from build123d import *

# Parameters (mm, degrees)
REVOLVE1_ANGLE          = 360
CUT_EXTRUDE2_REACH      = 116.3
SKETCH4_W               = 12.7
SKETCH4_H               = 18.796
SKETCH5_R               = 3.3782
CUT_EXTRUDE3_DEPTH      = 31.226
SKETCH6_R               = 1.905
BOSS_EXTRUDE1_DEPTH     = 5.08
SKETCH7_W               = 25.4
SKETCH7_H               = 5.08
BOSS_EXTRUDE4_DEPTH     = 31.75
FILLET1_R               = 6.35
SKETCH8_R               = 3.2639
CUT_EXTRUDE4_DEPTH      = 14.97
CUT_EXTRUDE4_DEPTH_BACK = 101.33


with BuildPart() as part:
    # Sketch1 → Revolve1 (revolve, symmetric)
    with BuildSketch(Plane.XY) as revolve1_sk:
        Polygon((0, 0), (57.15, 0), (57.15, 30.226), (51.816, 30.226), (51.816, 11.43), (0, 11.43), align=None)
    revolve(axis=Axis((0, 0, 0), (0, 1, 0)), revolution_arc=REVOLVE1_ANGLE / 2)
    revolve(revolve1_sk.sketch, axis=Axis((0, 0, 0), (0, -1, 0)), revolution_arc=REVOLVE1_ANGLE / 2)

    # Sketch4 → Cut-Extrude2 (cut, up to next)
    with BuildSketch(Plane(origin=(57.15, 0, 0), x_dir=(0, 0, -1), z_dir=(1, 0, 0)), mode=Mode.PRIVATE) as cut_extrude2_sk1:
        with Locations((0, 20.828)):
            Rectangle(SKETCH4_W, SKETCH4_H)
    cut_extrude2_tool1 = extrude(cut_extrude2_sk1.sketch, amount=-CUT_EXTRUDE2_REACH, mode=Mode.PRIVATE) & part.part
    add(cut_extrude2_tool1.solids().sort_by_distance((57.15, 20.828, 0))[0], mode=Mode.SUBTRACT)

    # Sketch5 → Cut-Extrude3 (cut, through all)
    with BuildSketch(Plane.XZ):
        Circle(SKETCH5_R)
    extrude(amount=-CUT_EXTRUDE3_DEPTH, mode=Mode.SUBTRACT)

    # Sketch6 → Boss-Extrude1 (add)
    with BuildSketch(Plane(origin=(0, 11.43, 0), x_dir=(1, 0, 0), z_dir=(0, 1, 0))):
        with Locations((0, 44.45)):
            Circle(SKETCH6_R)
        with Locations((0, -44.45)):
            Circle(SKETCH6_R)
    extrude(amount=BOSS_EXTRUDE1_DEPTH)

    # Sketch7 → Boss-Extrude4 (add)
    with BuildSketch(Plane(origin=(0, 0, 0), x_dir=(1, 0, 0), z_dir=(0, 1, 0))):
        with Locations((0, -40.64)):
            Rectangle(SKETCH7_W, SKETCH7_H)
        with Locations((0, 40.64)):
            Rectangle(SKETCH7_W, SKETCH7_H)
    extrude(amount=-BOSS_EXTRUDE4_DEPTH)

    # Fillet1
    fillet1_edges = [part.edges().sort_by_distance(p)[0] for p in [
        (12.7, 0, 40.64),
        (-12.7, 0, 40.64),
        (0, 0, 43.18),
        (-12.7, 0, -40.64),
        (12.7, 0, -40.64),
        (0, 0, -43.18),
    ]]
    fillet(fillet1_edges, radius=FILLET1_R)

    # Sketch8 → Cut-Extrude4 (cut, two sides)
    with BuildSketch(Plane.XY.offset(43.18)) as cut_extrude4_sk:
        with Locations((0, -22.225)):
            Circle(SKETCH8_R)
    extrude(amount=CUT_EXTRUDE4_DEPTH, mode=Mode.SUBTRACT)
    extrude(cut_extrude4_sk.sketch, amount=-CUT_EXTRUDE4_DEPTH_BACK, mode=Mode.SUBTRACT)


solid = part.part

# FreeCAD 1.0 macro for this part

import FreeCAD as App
import Part
import Sketcher

V = App.Vector
Q = App.Units.Quantity


def edges_at(feature, points):
    """Names of the edges that pass closest to the given points."""
    edges = feature.Shape.Edges
    near = lambda p: min(range(len(edges)), key=lambda i: edges[i].distToShape(Part.Vertex(*p))[0])
    return sorted({f"Edge{near(p) + 1}" for p in points})

doc = App.newDocument("Part")
params = doc.addObject("Spreadsheet::Sheet", "Params")
for row, (alias, value) in enumerate([
    ("sketch1_width", "2.25 in"),
    ("sketch1_width2", "0.21 in"),
    ("sketch1_height", "1.19 in"),
    ("sketch1_height2", "0.74 in"),
    ("revolution_angle", "180 deg"),
    ("sketch2_width", "2.25 in"),
    ("sketch2_width2", "0.21 in"),
    ("sketch2_height", "1.19 in"),
    ("sketch2_height2", "0.74 in"),
    ("revolution2_angle", "180 deg"),
    ("sketch3_height", "0.5 in"),
    ("sketch3_width", "0.74 in"),
    ("sketch4_diameter", "0.266 in"),
    ("sketch5_diameter", "0.15 in"),
    ("pad1_length", "0.2 in"),
    ("sketch6_width", "1 in"),
    ("sketch6_height", "0.2 in"),
    ("pad2_length", "1.25 in"),
    ("fillet_radius", "0.25 in"),
    ("sketch7_diameter", "0.257 in"),
], start=1):
    params.set(f"A{row}", alias)
    params.set(f"B{row}", "=" + value)
    params.setAlias(f"B{row}", alias)

body = doc.addObject("PartDesign::Body", "Body")

sketch1 = body.newObject("Sketcher::SketchObject", "Sketch")
sketch1.AttachmentSupport = (doc.getObject("XY_Plane"), [""])
sketch1.MapMode = "FlatFace"
sketch1.addGeometry([
    Part.LineSegment(V(0, 0, 0), V(57, 0, 0)),
    Part.LineSegment(V(57, 0, 0), V(57, 30, 0)),
    Part.LineSegment(V(57, 30, 0), V(52, 30, 0)),
    Part.LineSegment(V(52, 30, 0), V(52, 11, 0)),
    Part.LineSegment(V(52, 11, 0), V(0, 11, 0)),
    Part.LineSegment(V(0, 11, 0), V(0, 0, 0)),
], False)
sketch1.addConstraint([
    Sketcher.Constraint("Coincident", 0, 2, 1, 1),
    Sketcher.Constraint("Coincident", 1, 2, 2, 1),
    Sketcher.Constraint("Coincident", 2, 2, 3, 1),
    Sketcher.Constraint("Coincident", 3, 2, 4, 1),
    Sketcher.Constraint("Coincident", 4, 2, 5, 1),
    Sketcher.Constraint("Coincident", 5, 2, 0, 1),
    Sketcher.Constraint("Horizontal", 0),
    Sketcher.Constraint("Vertical", 1),
    Sketcher.Constraint("Horizontal", 2),
    Sketcher.Constraint("Vertical", 3),
    Sketcher.Constraint("Horizontal", 4),
    Sketcher.Constraint("Vertical", 5),
    Sketcher.Constraint("Coincident", 5, 2, -1, 1),
    Sketcher.Constraint("DistanceX", 0, 1, 0, 2, Q("2.25 in")),
    Sketcher.Constraint("DistanceX", 2, 2, 2, 1, Q("0.21 in")),
    Sketcher.Constraint("DistanceY", 1, 1, 1, 2, Q("1.19 in")),
    Sketcher.Constraint("DistanceY", 3, 2, 3, 1, Q("0.74 in")),
])
sketch1.setExpression("Constraints[13]", "Params.sketch1_width")
sketch1.setExpression("Constraints[14]", "Params.sketch1_width2")
sketch1.setExpression("Constraints[15]", "Params.sketch1_height")
sketch1.setExpression("Constraints[16]", "Params.sketch1_height2")
revolution = body.newObject("PartDesign::Revolution", "Revolution")
revolution.Profile = sketch1
revolution.ReferenceAxis = (sketch1, ["V_Axis"])
revolution.setExpression("Angle", "Params.revolution_angle")

sketch2 = body.newObject("Sketcher::SketchObject", "Sketch001")
sketch2.AttachmentSupport = (doc.getObject("XY_Plane"), [""])
sketch2.MapMode = "FlatFace"
sketch2.addGeometry([
    Part.LineSegment(V(0, 0, 0), V(57, 0, 0)),
    Part.LineSegment(V(57, 0, 0), V(57, 30, 0)),
    Part.LineSegment(V(57, 30, 0), V(52, 30, 0)),
    Part.LineSegment(V(52, 30, 0), V(52, 11, 0)),
    Part.LineSegment(V(52, 11, 0), V(0, 11, 0)),
    Part.LineSegment(V(0, 11, 0), V(0, 0, 0)),
], False)
sketch2.addConstraint([
    Sketcher.Constraint("Coincident", 0, 2, 1, 1),
    Sketcher.Constraint("Coincident", 1, 2, 2, 1),
    Sketcher.Constraint("Coincident", 2, 2, 3, 1),
    Sketcher.Constraint("Coincident", 3, 2, 4, 1),
    Sketcher.Constraint("Coincident", 4, 2, 5, 1),
    Sketcher.Constraint("Coincident", 5, 2, 0, 1),
    Sketcher.Constraint("Horizontal", 0),
    Sketcher.Constraint("Vertical", 1),
    Sketcher.Constraint("Horizontal", 2),
    Sketcher.Constraint("Vertical", 3),
    Sketcher.Constraint("Horizontal", 4),
    Sketcher.Constraint("Vertical", 5),
    Sketcher.Constraint("Coincident", 5, 2, -1, 1),
    Sketcher.Constraint("DistanceX", 0, 1, 0, 2, Q("2.25 in")),
    Sketcher.Constraint("DistanceX", 2, 2, 2, 1, Q("0.21 in")),
    Sketcher.Constraint("DistanceY", 1, 1, 1, 2, Q("1.19 in")),
    Sketcher.Constraint("DistanceY", 3, 2, 3, 1, Q("0.74 in")),
])
sketch2.setExpression("Constraints[13]", "Params.sketch2_width")
sketch2.setExpression("Constraints[14]", "Params.sketch2_width2")
sketch2.setExpression("Constraints[15]", "Params.sketch2_height")
sketch2.setExpression("Constraints[16]", "Params.sketch2_height2")
revolution2 = body.newObject("PartDesign::Revolution", "Revolution001")
revolution2.Profile = sketch2
revolution2.ReferenceAxis = (sketch2, ["V_Axis"])
revolution2.setExpression("Angle", "Params.revolution2_angle")
revolution2.Reversed = True

sketch3 = body.newObject("Sketcher::SketchObject", "Sketch002")
sketch3.AttachmentSupport = (doc.getObject("YZ_Plane"), [""])
sketch3.MapMode = "FlatFace"
sketch3.AttachmentOffset = App.Placement(V(0, 0, 2.25 * 25.4), App.Rotation())
sketch3.addGeometry([
    Part.LineSegment(V(30, 6, 0), V(11, 6, 0)),
    Part.LineSegment(V(11, 6, 0), V(11, -6, 0)),
    Part.LineSegment(V(11, -6, 0), V(30, -6, 0)),
    Part.LineSegment(V(30, -6, 0), V(30, 6, 0)),
], False)
sketch3.addConstraint([
    Sketcher.Constraint("Coincident", 0, 2, 1, 1),
    Sketcher.Constraint("Coincident", 1, 2, 2, 1),
    Sketcher.Constraint("Coincident", 2, 2, 3, 1),
    Sketcher.Constraint("Coincident", 3, 2, 0, 1),
    Sketcher.Constraint("Horizontal", 0),
    Sketcher.Constraint("Vertical", 1),
    Sketcher.Constraint("Horizontal", 2),
    Sketcher.Constraint("Vertical", 3),
    Sketcher.Constraint("DistanceY", 1, 2, 1, 1, Q("0.5 in")),
    Sketcher.Constraint("DistanceX", 0, 2, 0, 1, Q("0.74 in")),
    Sketcher.Constraint("DistanceX", -1, 1, 0, 2, Q("0.45 in")),
    Sketcher.Constraint("DistanceY", -1, 1, 0, 2, Q("0.25 in")),
])
sketch3.setExpression("Constraints[8]", "Params.sketch3_height")
sketch3.setExpression("Constraints[9]", "Params.sketch3_width")
pocket1 = body.newObject("PartDesign::Pocket", "Pocket")
pocket1.Profile = sketch3
pocket1.Type = "UpToFirst"

sketch4 = body.newObject("Sketcher::SketchObject", "Sketch003")
sketch4.AttachmentSupport = (doc.getObject("XZ_Plane"), [""])
sketch4.MapMode = "FlatFace"
sketch4.addGeometry(Part.Circle(V(0, 0, 0), V(0, 0, 1), 3.4), False)
sketch4.addConstraint([
    Sketcher.Constraint("Coincident", 0, 3, -1, 1),
    Sketcher.Constraint("Diameter", 0, Q("0.266 in")),
])
sketch4.setExpression("Constraints[1]", "Params.sketch4_diameter")
pocket2 = body.newObject("PartDesign::Pocket", "Pocket001")
pocket2.Profile = sketch4
pocket2.Type = "ThroughAll"

sketch5 = body.newObject("Sketcher::SketchObject", "Sketch004")
sketch5.AttachmentSupport = (doc.getObject("XZ_Plane"), [""])
sketch5.MapMode = "FlatFace"
sketch5.AttachmentOffset = App.Placement(V(0, 0, -0.45 * 25.4), App.Rotation())
sketch5.addGeometry([
    Part.Circle(V(0, -44.5, 0), V(0, 0, 1), 1.9),
    Part.Circle(V(0, 44.5, 0), V(0, 0, 1), 1.9),
], False)
sketch5.addConstraint([
    Sketcher.Constraint("Equal", 0, 1),
    Sketcher.Constraint("Symmetric", 0, 3, 1, 3, -1, 1),
    Sketcher.Constraint("PointOnObject", 0, 3, -2),
    Sketcher.Constraint("Diameter", 0, Q("0.15 in")),
    Sketcher.Constraint("DistanceY", 0, 3, 1, 3, Q("3.5 in")),
])
sketch5.setExpression("Constraints[3]", "Params.sketch5_diameter")
pad1 = body.newObject("PartDesign::Pad", "Pad")
pad1.Profile = sketch5
pad1.setExpression("Length", "Params.pad1_length")
pad1.Reversed = True

sketch6 = body.newObject("Sketcher::SketchObject", "Sketch005")
sketch6.AttachmentSupport = (doc.getObject("XZ_Plane"), [""])
sketch6.MapMode = "FlatFace"
sketch6.addGeometry([
    Part.LineSegment(V(-13, 38, 0), V(-13, 43, 0)),
    Part.LineSegment(V(-13, 43, 0), V(13, 43, 0)),
    Part.LineSegment(V(13, 43, 0), V(13, 38, 0)),
    Part.LineSegment(V(13, 38, 0), V(-13, 38, 0)),
    Part.LineSegment(V(-13, -43, 0), V(-13, -38, 0)),
    Part.LineSegment(V(-13, -38, 0), V(13, -38, 0)),
    Part.LineSegment(V(13, -38, 0), V(13, -43, 0)),
    Part.LineSegment(V(13, -43, 0), V(-13, -43, 0)),
], False)
sketch6.addConstraint([
    Sketcher.Constraint("Coincident", 0, 2, 1, 1),
    Sketcher.Constraint("Coincident", 1, 2, 2, 1),
    Sketcher.Constraint("Coincident", 2, 2, 3, 1),
    Sketcher.Constraint("Coincident", 3, 2, 0, 1),
    Sketcher.Constraint("Coincident", 4, 2, 5, 1),
    Sketcher.Constraint("Coincident", 5, 2, 6, 1),
    Sketcher.Constraint("Coincident", 6, 2, 7, 1),
    Sketcher.Constraint("Coincident", 7, 2, 4, 1),
    Sketcher.Constraint("Vertical", 0),
    Sketcher.Constraint("Horizontal", 1),
    Sketcher.Constraint("Vertical", 2),
    Sketcher.Constraint("Horizontal", 3),
    Sketcher.Constraint("Vertical", 4),
    Sketcher.Constraint("Horizontal", 5),
    Sketcher.Constraint("Vertical", 6),
    Sketcher.Constraint("Horizontal", 7),
    Sketcher.Constraint("Symmetric", 2, 2, 4, 2, -1, 1),
    Sketcher.Constraint("Symmetric", 0, 2, 6, 2, -1, 1),
    Sketcher.Constraint("Vertical", 3, 2, 4, 2),
    Sketcher.Constraint("DistanceX", 1, 1, 1, 2, Q("1 in")),
    Sketcher.Constraint("DistanceY", 0, 1, 0, 2, Q("0.2 in")),
    Sketcher.Constraint("DistanceY", 4, 2, 3, 2, Q("3 in")),
])
sketch6.setExpression("Constraints[19]", "Params.sketch6_width")
sketch6.setExpression("Constraints[20]", "Params.sketch6_height")
pad2 = body.newObject("PartDesign::Pad", "Pad001")
pad2.Profile = sketch6
pad2.setExpression("Length", "Params.pad2_length")
doc.recompute()

fillet = body.newObject("PartDesign::Fillet", "Fillet")
fillet.Base = (pad2, edges_at(pad2, [
    (12.7, 0, 40.64),
    (-12.7, 0, 40.64),
    (0, 0, 43.18),
    (-12.7, 0, -40.64),
    (12.7, 0, -40.64),
    (0, 0, -43.18),
]))
fillet.setExpression("Radius", "Params.fillet_radius")

sketch7 = body.newObject("Sketcher::SketchObject", "Sketch006")
sketch7.AttachmentSupport = (doc.getObject("XY_Plane"), [""])
sketch7.MapMode = "FlatFace"
sketch7.AttachmentOffset = App.Placement(V(0, 0, 1.7 * 25.4), App.Rotation())
sketch7.addGeometry(Part.Circle(V(0, -22.2, 0), V(0, 0, 1), 3.3), False)
sketch7.addConstraint([
    Sketcher.Constraint("PointOnObject", 0, 3, -2),
    Sketcher.Constraint("Diameter", 0, Q("0.257 in")),
    Sketcher.Constraint("DistanceY", 0, 3, -1, 1, Q("0.875 in")),
])
sketch7.setExpression("Constraints[1]", "Params.sketch7_diameter")
pocket3 = body.newObject("PartDesign::Pocket", "Pocket002")
pocket3.Profile = sketch7
pocket3.Type = "ThroughAll"
pocket3.Midplane = True

doc.recompute()
